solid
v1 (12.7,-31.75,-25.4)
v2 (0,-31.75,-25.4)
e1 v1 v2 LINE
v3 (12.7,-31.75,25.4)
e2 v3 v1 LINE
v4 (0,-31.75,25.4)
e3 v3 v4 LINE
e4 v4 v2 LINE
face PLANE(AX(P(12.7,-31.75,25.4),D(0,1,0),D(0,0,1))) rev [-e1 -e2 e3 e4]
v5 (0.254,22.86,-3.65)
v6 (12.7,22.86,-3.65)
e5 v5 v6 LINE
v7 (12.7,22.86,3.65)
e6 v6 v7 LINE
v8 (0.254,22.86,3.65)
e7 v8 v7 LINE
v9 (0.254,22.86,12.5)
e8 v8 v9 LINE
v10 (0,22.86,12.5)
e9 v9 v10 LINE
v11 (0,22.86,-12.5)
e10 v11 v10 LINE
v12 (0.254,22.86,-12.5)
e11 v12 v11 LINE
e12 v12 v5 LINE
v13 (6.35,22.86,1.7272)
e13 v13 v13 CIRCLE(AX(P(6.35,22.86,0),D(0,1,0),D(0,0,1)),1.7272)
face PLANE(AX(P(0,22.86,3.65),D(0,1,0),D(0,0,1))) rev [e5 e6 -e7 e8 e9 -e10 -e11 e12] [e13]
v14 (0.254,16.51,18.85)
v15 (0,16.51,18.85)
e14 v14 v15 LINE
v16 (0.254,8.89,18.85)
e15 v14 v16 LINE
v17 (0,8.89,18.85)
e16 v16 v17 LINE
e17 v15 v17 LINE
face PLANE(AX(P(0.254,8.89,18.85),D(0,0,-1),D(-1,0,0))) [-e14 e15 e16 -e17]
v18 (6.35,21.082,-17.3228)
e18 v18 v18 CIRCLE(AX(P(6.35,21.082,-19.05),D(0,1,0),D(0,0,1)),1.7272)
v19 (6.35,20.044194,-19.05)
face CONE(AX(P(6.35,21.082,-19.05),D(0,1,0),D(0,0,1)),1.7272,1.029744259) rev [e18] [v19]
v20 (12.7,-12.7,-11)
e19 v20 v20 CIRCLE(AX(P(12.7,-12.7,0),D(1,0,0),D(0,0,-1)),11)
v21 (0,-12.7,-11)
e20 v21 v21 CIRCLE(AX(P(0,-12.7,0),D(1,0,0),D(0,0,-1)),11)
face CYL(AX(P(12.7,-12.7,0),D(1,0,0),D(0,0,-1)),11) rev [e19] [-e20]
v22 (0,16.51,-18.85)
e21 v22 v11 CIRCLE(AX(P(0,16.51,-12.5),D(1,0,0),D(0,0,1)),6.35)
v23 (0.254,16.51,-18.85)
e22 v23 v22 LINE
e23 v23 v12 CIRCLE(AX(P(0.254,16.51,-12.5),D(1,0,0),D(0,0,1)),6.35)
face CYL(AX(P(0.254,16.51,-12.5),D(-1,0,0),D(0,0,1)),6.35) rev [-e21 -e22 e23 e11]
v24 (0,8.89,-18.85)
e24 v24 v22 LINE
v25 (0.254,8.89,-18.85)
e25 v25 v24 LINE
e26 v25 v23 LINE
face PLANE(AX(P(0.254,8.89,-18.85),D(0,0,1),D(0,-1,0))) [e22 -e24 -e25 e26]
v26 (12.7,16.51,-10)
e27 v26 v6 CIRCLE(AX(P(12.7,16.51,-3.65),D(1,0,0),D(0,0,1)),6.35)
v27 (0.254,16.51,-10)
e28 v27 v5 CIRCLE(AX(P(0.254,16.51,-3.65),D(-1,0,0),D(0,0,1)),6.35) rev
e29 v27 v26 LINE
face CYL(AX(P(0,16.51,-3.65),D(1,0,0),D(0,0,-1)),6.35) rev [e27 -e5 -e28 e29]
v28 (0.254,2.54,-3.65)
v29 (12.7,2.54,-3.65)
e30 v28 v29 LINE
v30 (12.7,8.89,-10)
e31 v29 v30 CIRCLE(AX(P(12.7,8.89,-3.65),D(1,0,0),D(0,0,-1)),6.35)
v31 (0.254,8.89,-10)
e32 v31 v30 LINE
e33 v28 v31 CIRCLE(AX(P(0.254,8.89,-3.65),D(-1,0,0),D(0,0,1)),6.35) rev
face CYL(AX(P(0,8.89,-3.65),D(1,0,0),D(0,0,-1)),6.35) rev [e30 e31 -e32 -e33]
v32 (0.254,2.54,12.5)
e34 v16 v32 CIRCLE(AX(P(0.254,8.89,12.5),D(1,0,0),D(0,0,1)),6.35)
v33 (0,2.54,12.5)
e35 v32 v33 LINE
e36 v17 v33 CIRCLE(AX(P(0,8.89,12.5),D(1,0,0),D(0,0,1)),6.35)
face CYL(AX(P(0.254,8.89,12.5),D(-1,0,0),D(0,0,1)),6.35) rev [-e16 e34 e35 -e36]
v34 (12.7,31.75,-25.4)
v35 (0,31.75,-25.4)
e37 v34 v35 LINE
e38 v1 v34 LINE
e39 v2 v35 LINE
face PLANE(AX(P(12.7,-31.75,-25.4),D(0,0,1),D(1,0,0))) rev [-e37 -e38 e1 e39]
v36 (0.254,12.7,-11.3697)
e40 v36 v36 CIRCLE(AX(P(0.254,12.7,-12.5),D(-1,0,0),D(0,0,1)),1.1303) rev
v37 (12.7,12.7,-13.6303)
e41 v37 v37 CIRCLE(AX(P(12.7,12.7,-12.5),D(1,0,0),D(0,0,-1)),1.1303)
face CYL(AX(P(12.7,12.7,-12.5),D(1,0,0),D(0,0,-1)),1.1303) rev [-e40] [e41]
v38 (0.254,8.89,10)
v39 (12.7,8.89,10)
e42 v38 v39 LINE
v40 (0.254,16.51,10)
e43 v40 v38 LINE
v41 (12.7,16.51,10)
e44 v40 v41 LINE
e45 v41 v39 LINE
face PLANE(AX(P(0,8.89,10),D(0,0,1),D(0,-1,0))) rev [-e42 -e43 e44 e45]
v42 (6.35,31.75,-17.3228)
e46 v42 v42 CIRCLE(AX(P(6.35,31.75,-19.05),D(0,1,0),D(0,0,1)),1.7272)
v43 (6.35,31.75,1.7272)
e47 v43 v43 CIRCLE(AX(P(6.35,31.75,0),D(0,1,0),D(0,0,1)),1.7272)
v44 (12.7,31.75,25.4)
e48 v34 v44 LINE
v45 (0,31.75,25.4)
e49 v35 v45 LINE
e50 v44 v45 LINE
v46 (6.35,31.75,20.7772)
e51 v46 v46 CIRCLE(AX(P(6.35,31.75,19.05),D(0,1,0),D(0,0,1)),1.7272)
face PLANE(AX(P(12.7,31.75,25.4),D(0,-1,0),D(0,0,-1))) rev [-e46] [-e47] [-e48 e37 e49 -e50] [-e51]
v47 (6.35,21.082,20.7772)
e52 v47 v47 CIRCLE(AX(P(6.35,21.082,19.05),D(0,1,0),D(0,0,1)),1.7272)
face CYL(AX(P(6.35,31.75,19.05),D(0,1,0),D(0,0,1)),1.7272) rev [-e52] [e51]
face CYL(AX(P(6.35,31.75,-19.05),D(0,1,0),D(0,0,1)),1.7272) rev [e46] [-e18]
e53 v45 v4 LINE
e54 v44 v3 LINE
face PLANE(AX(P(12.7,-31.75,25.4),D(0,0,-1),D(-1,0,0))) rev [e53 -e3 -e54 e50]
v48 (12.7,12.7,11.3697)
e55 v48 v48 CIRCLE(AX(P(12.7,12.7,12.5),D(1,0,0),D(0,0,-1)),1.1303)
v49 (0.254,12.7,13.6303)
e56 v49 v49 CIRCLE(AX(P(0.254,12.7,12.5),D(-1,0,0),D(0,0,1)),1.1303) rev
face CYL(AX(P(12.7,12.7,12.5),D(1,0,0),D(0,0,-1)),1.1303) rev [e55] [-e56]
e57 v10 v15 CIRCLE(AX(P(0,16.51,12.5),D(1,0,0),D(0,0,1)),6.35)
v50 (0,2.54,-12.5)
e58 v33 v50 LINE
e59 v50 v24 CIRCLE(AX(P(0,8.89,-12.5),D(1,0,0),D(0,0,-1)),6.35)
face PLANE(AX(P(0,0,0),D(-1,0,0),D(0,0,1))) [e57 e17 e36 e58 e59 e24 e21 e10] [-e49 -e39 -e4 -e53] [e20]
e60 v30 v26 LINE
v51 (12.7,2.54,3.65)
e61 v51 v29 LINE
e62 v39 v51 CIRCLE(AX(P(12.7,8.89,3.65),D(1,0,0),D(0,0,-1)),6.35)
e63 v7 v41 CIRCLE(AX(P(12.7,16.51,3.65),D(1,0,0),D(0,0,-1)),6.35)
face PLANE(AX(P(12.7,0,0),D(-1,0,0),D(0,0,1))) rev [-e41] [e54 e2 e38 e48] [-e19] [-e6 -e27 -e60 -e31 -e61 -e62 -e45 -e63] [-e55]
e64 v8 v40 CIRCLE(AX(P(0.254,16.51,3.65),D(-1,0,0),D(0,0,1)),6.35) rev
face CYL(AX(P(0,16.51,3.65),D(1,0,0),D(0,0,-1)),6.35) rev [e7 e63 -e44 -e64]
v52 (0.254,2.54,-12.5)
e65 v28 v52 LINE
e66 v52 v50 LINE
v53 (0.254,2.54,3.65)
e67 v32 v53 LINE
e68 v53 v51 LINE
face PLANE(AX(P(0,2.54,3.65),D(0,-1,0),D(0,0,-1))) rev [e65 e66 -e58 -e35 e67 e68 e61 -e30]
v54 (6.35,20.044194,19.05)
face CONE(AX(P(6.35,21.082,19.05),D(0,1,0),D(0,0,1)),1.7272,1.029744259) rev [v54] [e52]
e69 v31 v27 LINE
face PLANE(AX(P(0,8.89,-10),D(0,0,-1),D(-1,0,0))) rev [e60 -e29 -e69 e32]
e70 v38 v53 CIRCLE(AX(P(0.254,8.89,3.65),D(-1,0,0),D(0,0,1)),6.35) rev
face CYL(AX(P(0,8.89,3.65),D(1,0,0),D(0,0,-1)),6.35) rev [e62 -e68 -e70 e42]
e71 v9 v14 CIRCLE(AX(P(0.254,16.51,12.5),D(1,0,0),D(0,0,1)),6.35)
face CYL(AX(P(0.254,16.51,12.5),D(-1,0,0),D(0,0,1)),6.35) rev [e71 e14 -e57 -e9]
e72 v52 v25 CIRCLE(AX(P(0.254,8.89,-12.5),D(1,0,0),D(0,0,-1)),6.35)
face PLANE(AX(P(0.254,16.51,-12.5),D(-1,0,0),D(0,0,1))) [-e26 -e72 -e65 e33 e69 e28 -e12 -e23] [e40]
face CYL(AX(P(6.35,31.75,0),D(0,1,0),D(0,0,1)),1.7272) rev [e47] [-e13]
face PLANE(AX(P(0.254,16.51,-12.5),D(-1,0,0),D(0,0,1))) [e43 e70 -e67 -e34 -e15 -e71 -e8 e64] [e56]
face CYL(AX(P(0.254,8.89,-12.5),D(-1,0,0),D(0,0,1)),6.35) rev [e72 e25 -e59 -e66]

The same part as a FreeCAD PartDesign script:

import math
import FreeCAD as App
import Part
import Sketcher
Q = App.Units.Quantity


def add_polygon(sketch, points):
    """Adds a closed chain of lines whose ends are joined by coincident constraints."""
    first, n = sketch.GeometryCount, len(points)
    for a, b in zip(points, points[1:] + points[:1]):
        sketch.addGeometry(Part.LineSegment(App.Vector(*a, 0), App.Vector(*b, 0)), False)
    for i in range(n):
        sketch.addConstraint(Sketcher.Constraint("Coincident", first + i, 2, first + (i + 1) % n, 1))

doc = App.newDocument("Part")
body = doc.addObject("PartDesign::Body", "Body")

# Sketch on YZ plane
sketch1 = body.newObject("Sketcher::SketchObject", "Sketch")
sketch1.AttachmentSupport = (doc.getObject("YZ_Plane"), [""])
sketch1.MapMode = "FlatFace"
add_polygon(sketch1, [(32, 25), (-32, 25), (-32, -25), (32, -25)])  # lines 0-3
sketch1.addConstraint([
    Sketcher.Constraint("Horizontal", 0),
    Sketcher.Constraint("Vertical", 1),
    Sketcher.Constraint("Horizontal", 2),
    Sketcher.Constraint("Vertical", 3),
    Sketcher.Constraint("Symmetric", 0, 2, 2, 2, -1, 1),
    Sketcher.Constraint("DistanceY", 1, 2, 1, 1, Q("2 in")),
    Sketcher.Constraint("DistanceX", 0, 2, 0, 1, Q("2.5 in")),
])
pad1 = body.newObject("PartDesign::Pad", "Pad")
pad1.Profile = sketch1
pad1.Length = Q("0.5 in")

# Sketch on YZ plane
sketch2 = body.newObject("Sketcher::SketchObject", "Sketch001")
sketch2.AttachmentSupport = (doc.getObject("YZ_Plane"), [""])
sketch2.MapMode = "FlatFace"
sketch2.AttachmentOffset = App.Placement(App.Vector(0, 0, 0.5 * 25.4), App.Rotation())
sketch2.addGeometry(Part.Circle(App.Vector(-13, 0, 0), App.Vector(0, 0, 1), 11), False)
sketch2.addConstraint([
    Sketcher.Constraint("PointOnObject", 0, 3, -1),
    Sketcher.Constraint("DistanceX", 0, 3, -1, 1, Q("0.5 in")),
    Sketcher.Constraint("Diameter", 0, 22.0),
])
doc.recompute()
hole = body.newObject("PartDesign::Hole", "Hole")
hole.Profile = sketch2
hole.ThreadType = "None"
hole.Diameter = 22
hole.DepthType = "ThroughAll"

# Sketch on XZ plane
sketch3 = body.newObject("Sketcher::SketchObject", "Sketch002")
sketch3.AttachmentSupport = (doc.getObject("XZ_Plane"), [""])
sketch3.MapMode = "FlatFace"
sketch3.AttachmentOffset = App.Placement(App.Vector(0, 0, -0.5 * 25.4), App.Rotation())
add_polygon(sketch3, [(13.5, 0), (0, 0), (0, 4), (6.9, 3.8), (6.9, 3.1), (11.7, 3.1)])  # lines 0-5
sketch3.addConstraint([
    Sketcher.Constraint("Horizontal", 0),
    Sketcher.Constraint("Vertical", 1),
    Sketcher.Constraint("Vertical", 3),
    Sketcher.Constraint("Horizontal", 4),
    Sketcher.Constraint("Coincident", 0, 2, -1, 1),
    Sketcher.Constraint("Angle", 5, Q("-59 deg")),
    Sketcher.Constraint("DistanceX", 4, 1, 4, 2, Q("0.19 in")),
    Sketcher.Constraint("DistanceX", -1, 1, 2, 2, Q("0.27 in")),
    Sketcher.Constraint("DistanceY", -1, 1, 3, 2, Q("0.121 in")),
    Sketcher.Constraint("DistanceY", 1, 1, 1, 2, 3.967912),
    Sketcher.Constraint("DistanceY", 3, 2, 3, 1, 0.689174),
])
groove = body.newObject("PartDesign::Groove", "Groove")
groove.Profile = sketch3
groove.ReferenceAxis = (sketch3, ["H_Axis"])
groove.Angle = 360

# Sketch on YZ plane
sketch4 = body.newObject("Sketcher::SketchObject", "Sketch003")
sketch4.AttachmentSupport = (doc.getObject("YZ_Plane"), [""])
sketch4.MapMode = "FlatFace"
sketch4.AttachmentOffset = App.Placement(App.Vector(0, 0, 0.5 * 25.4), App.Rotation())
sketch4.addGeometry([
    Part.Circle(App.Vector(12.7, 12.5, 0), App.Vector(0, 0, 1), 1.1),
    Part.Circle(App.Vector(12.7, -12.5, 0), App.Vector(0, 0, 1), 1.1),
], False)
sketch4.addConstraint([
    Sketcher.Constraint("Equal", 0, 1),
    Sketcher.Constraint("Symmetric", 0, 3, 1, 3, -1),
    Sketcher.Constraint("Diameter", 0, Q("0.089 in")),
    Sketcher.Constraint("DistanceX", -1, 1, 0, 3, Q("0.5 in")),
    Sketcher.Constraint("DistanceY", -1, 1, 0, 3, 12.5),
])
doc.recompute()
hole2 = body.newObject("PartDesign::Hole", "Hole001")
hole2.Profile = sketch4
hole2.ThreadType = "None"
hole2.Diameter = Q("0.089 in")
hole2.DepthType = "ThroughAll"

# Sketch on YZ plane
sketch5 = body.newObject("Sketcher::SketchObject", "Sketch004")
sketch5.AttachmentSupport = (doc.getObject("YZ_Plane"), [""])
sketch5.MapMode = "FlatFace"
sketch5.AttachmentOffset = App.Placement(App.Vector(0, 0, 0.5 * 25.4), App.Rotation())
sketch5.addGeometry([
    Part.LineSegment(App.Vector(3, 4, 0), App.Vector(3, -4, 0)),  # 0
    Part.ArcOfCircle(Part.Circle(App.Vector(9, -4, 0), App.Vector(0, 0, 1), 6), math.radians(180), math.radians(270)),  # 1
    Part.LineSegment(App.Vector(9, -10, 0), App.Vector(17, -10, 0)),  # 2
    Part.ArcOfCircle(Part.Circle(App.Vector(17, -4, 0), App.Vector(0, 0, 1), 6), math.radians(-90), math.radians(0)),  # 3
    Part.LineSegment(App.Vector(23, -4, 0), App.Vector(23, 4, 0)),  # 4
    Part.ArcOfCircle(Part.Circle(App.Vector(17, 4, 0), App.Vector(0, 0, 1), 6), math.radians(0), math.radians(90)),  # 5
    Part.LineSegment(App.Vector(17, 10, 0), App.Vector(9, 10, 0)),  # 6
    Part.ArcOfCircle(Part.Circle(App.Vector(9, 4, 0), App.Vector(0, 0, 1), 6), math.radians(90), math.radians(180)),  # 7
], False)
sketch5.addConstraint([
    Sketcher.Constraint("Tangent", 0, 2, 1, 1),
    Sketcher.Constraint("Tangent", 1, 2, 2, 1),
    Sketcher.Constraint("Tangent", 2, 2, 3, 1),
    Sketcher.Constraint("Tangent", 3, 2, 4, 1),
    Sketcher.Constraint("Tangent", 4, 2, 5, 1),
    Sketcher.Constraint("Tangent", 5, 2, 6, 1),
    Sketcher.Constraint("Tangent", 6, 2, 7, 1),
    Sketcher.Constraint("Tangent", 7, 2, 0, 1),
    Sketcher.Constraint("Vertical", 0),
    Sketcher.Constraint("Horizontal", 2),
    Sketcher.Constraint("Vertical", 4),
    Sketcher.Constraint("Horizontal", 6),
    Sketcher.Constraint("Equal", 1, 3),
    Sketcher.Constraint("Equal", 3, 5),
    Sketcher.Constraint("Equal", 5, 7),
    Sketcher.Constraint("Radius", 1, Q("0.25 in")),
    Sketcher.Constraint("DistanceX", 2, 1, 2, 2, Q("0.3 in")),
    Sketcher.Constraint("DistanceX", -1, 1, 0, 2, Q("0.1 in")),
    Sketcher.Constraint("DistanceY", 0, 2, 0, 1, 7.3),
    Sketcher.Constraint("DistanceY", 1, 3, -1, 1, 3.65),
])
pocket1 = body.newObject("PartDesign::Pocket", "Pocket")
pocket1.Profile = sketch5
pocket1.Type = "ThroughAll"

# Sketch on YZ plane
sketch6 = body.newObject("Sketcher::SketchObject", "Sketch005")
sketch6.AttachmentSupport = (doc.getObject("YZ_Plane"), [""])
sketch6.MapMode = "FlatFace"
sketch6.addGeometry([
    Part.LineSegment(App.Vector(3, 12, 0), App.Vector(3, -12, 0)),  # 0
    Part.ArcOfCircle(Part.Circle(App.Vector(9, -13, 0), App.Vector(0, 0, 1), 6), math.radians(180), math.radians(270)),  # 1
    Part.LineSegment(App.Vector(9, -19, 0), App.Vector(17, -19, 0)),  # 2
    Part.ArcOfCircle(Part.Circle(App.Vector(17, -13, 0), App.Vector(0, 0, 1), 6), math.radians(-90), math.radians(0)),  # 3
    Part.LineSegment(App.Vector(23, -12, 0), App.Vector(23, 12, 0)),  # 4
    Part.ArcOfCircle(Part.Circle(App.Vector(17, 13, 0), App.Vector(0, 0, 1), 6), math.radians(0), math.radians(90)),  # 5
    Part.LineSegment(App.Vector(17, 19, 0), App.Vector(9, 19, 0)),  # 6
    Part.ArcOfCircle(Part.Circle(App.Vector(9, 13, 0), App.Vector(0, 0, 1), 6), math.radians(90), math.radians(180)),  # 7
], False)
sketch6.addConstraint([
    Sketcher.Constraint("Tangent", 0, 2, 1, 1),
    Sketcher.Constraint("Tangent", 1, 2, 2, 1),
    Sketcher.Constraint("Tangent", 2, 2, 3, 1),
    Sketcher.Constraint("Tangent", 3, 2, 4, 1),
    Sketcher.Constraint("Tangent", 4, 2, 5, 1),
    Sketcher.Constraint("Tangent", 5, 2, 6, 1),
    Sketcher.Constraint("Tangent", 6, 2, 7, 1),
    Sketcher.Constraint("Tangent", 7, 2, 0, 1),
    Sketcher.Constraint("Vertical", 0),
    Sketcher.Constraint("Horizontal", 2),
    Sketcher.Constraint("Vertical", 4),
    Sketcher.Constraint("Horizontal", 6),
    Sketcher.Constraint("Equal", 1, 3),
    Sketcher.Constraint("Equal", 3, 5),
    Sketcher.Constraint("Equal", 5, 7),
    Sketcher.Constraint("Radius", 1, Q("0.25 in")),
    Sketcher.Constraint("DistanceX", 2, 1, 2, 2, Q("0.3 in")),
    Sketcher.Constraint("DistanceX", -1, 1, 0, 2, Q("0.1 in")),
    Sketcher.Constraint("DistanceY", 0, 2, 0, 1, 25.0),
    Sketcher.Constraint("DistanceY", 1, 3, -1, 1, 12.5),
])
pocket2 = body.newObject("PartDesign::Pocket", "Pocket001")
pocket2.Profile = sketch6
pocket2.Length = Q("0.01 in")
pocket2.Reversed = True

# Sketch on XZ plane
sketch7 = body.newObject("Sketcher::SketchObject", "Sketch006")
sketch7.AttachmentSupport = (doc.getObject("XZ_Plane"), [""])
sketch7.MapMode = "FlatFace"
sketch7.AttachmentOffset = App.Placement(App.Vector(0, 0, -1.25 * 25.4), App.Rotation())
sketch7.addGeometry([
    Part.Circle(App.Vector(6.3, -19.1, 0), App.Vector(0, 0, 1), 1.7),
    Part.Circle(App.Vector(6.3, 19.1, 0), App.Vector(0, 0, 1), 1.7),
    Part.Circle(App.Vector(6.3, 0, 0), App.Vector(0, 0, 1), 1.7),
], False)
sketch7.addConstraint([
    Sketcher.Constraint("Equal", 0, 1),
    Sketcher.Constraint("Equal", 1, 2),
    Sketcher.Constraint("Symmetric", 0, 3, 1, 3, -1),
    Sketcher.Constraint("PointOnObject", 2, 3, -1),
    Sketcher.Constraint("Vertical", 1, 3, 2, 3),
    Sketcher.Constraint("Diameter", 0, Q("0.136 in")),
    Sketcher.Constraint("DistanceY", 0, 3, 1, 3, Q("1.5 in")),
    Sketcher.Constraint("DistanceX", -1, 1, 0, 3, Q("0.25 in")),
])
doc.recompute()
hole3 = body.newObject("PartDesign::Hole", "Hole002")
hole3.Profile = sketch7
hole3.ThreadType = "None"
hole3.Diameter = Q("0.136 in")
hole3.DepthType = "Dimension"
hole3.Depth = Q("0.42 in")
hole3.DrillPoint = "Angled"
hole3.DrillPointAngle = 118
hole3.Reversed = True

doc.recompute()
